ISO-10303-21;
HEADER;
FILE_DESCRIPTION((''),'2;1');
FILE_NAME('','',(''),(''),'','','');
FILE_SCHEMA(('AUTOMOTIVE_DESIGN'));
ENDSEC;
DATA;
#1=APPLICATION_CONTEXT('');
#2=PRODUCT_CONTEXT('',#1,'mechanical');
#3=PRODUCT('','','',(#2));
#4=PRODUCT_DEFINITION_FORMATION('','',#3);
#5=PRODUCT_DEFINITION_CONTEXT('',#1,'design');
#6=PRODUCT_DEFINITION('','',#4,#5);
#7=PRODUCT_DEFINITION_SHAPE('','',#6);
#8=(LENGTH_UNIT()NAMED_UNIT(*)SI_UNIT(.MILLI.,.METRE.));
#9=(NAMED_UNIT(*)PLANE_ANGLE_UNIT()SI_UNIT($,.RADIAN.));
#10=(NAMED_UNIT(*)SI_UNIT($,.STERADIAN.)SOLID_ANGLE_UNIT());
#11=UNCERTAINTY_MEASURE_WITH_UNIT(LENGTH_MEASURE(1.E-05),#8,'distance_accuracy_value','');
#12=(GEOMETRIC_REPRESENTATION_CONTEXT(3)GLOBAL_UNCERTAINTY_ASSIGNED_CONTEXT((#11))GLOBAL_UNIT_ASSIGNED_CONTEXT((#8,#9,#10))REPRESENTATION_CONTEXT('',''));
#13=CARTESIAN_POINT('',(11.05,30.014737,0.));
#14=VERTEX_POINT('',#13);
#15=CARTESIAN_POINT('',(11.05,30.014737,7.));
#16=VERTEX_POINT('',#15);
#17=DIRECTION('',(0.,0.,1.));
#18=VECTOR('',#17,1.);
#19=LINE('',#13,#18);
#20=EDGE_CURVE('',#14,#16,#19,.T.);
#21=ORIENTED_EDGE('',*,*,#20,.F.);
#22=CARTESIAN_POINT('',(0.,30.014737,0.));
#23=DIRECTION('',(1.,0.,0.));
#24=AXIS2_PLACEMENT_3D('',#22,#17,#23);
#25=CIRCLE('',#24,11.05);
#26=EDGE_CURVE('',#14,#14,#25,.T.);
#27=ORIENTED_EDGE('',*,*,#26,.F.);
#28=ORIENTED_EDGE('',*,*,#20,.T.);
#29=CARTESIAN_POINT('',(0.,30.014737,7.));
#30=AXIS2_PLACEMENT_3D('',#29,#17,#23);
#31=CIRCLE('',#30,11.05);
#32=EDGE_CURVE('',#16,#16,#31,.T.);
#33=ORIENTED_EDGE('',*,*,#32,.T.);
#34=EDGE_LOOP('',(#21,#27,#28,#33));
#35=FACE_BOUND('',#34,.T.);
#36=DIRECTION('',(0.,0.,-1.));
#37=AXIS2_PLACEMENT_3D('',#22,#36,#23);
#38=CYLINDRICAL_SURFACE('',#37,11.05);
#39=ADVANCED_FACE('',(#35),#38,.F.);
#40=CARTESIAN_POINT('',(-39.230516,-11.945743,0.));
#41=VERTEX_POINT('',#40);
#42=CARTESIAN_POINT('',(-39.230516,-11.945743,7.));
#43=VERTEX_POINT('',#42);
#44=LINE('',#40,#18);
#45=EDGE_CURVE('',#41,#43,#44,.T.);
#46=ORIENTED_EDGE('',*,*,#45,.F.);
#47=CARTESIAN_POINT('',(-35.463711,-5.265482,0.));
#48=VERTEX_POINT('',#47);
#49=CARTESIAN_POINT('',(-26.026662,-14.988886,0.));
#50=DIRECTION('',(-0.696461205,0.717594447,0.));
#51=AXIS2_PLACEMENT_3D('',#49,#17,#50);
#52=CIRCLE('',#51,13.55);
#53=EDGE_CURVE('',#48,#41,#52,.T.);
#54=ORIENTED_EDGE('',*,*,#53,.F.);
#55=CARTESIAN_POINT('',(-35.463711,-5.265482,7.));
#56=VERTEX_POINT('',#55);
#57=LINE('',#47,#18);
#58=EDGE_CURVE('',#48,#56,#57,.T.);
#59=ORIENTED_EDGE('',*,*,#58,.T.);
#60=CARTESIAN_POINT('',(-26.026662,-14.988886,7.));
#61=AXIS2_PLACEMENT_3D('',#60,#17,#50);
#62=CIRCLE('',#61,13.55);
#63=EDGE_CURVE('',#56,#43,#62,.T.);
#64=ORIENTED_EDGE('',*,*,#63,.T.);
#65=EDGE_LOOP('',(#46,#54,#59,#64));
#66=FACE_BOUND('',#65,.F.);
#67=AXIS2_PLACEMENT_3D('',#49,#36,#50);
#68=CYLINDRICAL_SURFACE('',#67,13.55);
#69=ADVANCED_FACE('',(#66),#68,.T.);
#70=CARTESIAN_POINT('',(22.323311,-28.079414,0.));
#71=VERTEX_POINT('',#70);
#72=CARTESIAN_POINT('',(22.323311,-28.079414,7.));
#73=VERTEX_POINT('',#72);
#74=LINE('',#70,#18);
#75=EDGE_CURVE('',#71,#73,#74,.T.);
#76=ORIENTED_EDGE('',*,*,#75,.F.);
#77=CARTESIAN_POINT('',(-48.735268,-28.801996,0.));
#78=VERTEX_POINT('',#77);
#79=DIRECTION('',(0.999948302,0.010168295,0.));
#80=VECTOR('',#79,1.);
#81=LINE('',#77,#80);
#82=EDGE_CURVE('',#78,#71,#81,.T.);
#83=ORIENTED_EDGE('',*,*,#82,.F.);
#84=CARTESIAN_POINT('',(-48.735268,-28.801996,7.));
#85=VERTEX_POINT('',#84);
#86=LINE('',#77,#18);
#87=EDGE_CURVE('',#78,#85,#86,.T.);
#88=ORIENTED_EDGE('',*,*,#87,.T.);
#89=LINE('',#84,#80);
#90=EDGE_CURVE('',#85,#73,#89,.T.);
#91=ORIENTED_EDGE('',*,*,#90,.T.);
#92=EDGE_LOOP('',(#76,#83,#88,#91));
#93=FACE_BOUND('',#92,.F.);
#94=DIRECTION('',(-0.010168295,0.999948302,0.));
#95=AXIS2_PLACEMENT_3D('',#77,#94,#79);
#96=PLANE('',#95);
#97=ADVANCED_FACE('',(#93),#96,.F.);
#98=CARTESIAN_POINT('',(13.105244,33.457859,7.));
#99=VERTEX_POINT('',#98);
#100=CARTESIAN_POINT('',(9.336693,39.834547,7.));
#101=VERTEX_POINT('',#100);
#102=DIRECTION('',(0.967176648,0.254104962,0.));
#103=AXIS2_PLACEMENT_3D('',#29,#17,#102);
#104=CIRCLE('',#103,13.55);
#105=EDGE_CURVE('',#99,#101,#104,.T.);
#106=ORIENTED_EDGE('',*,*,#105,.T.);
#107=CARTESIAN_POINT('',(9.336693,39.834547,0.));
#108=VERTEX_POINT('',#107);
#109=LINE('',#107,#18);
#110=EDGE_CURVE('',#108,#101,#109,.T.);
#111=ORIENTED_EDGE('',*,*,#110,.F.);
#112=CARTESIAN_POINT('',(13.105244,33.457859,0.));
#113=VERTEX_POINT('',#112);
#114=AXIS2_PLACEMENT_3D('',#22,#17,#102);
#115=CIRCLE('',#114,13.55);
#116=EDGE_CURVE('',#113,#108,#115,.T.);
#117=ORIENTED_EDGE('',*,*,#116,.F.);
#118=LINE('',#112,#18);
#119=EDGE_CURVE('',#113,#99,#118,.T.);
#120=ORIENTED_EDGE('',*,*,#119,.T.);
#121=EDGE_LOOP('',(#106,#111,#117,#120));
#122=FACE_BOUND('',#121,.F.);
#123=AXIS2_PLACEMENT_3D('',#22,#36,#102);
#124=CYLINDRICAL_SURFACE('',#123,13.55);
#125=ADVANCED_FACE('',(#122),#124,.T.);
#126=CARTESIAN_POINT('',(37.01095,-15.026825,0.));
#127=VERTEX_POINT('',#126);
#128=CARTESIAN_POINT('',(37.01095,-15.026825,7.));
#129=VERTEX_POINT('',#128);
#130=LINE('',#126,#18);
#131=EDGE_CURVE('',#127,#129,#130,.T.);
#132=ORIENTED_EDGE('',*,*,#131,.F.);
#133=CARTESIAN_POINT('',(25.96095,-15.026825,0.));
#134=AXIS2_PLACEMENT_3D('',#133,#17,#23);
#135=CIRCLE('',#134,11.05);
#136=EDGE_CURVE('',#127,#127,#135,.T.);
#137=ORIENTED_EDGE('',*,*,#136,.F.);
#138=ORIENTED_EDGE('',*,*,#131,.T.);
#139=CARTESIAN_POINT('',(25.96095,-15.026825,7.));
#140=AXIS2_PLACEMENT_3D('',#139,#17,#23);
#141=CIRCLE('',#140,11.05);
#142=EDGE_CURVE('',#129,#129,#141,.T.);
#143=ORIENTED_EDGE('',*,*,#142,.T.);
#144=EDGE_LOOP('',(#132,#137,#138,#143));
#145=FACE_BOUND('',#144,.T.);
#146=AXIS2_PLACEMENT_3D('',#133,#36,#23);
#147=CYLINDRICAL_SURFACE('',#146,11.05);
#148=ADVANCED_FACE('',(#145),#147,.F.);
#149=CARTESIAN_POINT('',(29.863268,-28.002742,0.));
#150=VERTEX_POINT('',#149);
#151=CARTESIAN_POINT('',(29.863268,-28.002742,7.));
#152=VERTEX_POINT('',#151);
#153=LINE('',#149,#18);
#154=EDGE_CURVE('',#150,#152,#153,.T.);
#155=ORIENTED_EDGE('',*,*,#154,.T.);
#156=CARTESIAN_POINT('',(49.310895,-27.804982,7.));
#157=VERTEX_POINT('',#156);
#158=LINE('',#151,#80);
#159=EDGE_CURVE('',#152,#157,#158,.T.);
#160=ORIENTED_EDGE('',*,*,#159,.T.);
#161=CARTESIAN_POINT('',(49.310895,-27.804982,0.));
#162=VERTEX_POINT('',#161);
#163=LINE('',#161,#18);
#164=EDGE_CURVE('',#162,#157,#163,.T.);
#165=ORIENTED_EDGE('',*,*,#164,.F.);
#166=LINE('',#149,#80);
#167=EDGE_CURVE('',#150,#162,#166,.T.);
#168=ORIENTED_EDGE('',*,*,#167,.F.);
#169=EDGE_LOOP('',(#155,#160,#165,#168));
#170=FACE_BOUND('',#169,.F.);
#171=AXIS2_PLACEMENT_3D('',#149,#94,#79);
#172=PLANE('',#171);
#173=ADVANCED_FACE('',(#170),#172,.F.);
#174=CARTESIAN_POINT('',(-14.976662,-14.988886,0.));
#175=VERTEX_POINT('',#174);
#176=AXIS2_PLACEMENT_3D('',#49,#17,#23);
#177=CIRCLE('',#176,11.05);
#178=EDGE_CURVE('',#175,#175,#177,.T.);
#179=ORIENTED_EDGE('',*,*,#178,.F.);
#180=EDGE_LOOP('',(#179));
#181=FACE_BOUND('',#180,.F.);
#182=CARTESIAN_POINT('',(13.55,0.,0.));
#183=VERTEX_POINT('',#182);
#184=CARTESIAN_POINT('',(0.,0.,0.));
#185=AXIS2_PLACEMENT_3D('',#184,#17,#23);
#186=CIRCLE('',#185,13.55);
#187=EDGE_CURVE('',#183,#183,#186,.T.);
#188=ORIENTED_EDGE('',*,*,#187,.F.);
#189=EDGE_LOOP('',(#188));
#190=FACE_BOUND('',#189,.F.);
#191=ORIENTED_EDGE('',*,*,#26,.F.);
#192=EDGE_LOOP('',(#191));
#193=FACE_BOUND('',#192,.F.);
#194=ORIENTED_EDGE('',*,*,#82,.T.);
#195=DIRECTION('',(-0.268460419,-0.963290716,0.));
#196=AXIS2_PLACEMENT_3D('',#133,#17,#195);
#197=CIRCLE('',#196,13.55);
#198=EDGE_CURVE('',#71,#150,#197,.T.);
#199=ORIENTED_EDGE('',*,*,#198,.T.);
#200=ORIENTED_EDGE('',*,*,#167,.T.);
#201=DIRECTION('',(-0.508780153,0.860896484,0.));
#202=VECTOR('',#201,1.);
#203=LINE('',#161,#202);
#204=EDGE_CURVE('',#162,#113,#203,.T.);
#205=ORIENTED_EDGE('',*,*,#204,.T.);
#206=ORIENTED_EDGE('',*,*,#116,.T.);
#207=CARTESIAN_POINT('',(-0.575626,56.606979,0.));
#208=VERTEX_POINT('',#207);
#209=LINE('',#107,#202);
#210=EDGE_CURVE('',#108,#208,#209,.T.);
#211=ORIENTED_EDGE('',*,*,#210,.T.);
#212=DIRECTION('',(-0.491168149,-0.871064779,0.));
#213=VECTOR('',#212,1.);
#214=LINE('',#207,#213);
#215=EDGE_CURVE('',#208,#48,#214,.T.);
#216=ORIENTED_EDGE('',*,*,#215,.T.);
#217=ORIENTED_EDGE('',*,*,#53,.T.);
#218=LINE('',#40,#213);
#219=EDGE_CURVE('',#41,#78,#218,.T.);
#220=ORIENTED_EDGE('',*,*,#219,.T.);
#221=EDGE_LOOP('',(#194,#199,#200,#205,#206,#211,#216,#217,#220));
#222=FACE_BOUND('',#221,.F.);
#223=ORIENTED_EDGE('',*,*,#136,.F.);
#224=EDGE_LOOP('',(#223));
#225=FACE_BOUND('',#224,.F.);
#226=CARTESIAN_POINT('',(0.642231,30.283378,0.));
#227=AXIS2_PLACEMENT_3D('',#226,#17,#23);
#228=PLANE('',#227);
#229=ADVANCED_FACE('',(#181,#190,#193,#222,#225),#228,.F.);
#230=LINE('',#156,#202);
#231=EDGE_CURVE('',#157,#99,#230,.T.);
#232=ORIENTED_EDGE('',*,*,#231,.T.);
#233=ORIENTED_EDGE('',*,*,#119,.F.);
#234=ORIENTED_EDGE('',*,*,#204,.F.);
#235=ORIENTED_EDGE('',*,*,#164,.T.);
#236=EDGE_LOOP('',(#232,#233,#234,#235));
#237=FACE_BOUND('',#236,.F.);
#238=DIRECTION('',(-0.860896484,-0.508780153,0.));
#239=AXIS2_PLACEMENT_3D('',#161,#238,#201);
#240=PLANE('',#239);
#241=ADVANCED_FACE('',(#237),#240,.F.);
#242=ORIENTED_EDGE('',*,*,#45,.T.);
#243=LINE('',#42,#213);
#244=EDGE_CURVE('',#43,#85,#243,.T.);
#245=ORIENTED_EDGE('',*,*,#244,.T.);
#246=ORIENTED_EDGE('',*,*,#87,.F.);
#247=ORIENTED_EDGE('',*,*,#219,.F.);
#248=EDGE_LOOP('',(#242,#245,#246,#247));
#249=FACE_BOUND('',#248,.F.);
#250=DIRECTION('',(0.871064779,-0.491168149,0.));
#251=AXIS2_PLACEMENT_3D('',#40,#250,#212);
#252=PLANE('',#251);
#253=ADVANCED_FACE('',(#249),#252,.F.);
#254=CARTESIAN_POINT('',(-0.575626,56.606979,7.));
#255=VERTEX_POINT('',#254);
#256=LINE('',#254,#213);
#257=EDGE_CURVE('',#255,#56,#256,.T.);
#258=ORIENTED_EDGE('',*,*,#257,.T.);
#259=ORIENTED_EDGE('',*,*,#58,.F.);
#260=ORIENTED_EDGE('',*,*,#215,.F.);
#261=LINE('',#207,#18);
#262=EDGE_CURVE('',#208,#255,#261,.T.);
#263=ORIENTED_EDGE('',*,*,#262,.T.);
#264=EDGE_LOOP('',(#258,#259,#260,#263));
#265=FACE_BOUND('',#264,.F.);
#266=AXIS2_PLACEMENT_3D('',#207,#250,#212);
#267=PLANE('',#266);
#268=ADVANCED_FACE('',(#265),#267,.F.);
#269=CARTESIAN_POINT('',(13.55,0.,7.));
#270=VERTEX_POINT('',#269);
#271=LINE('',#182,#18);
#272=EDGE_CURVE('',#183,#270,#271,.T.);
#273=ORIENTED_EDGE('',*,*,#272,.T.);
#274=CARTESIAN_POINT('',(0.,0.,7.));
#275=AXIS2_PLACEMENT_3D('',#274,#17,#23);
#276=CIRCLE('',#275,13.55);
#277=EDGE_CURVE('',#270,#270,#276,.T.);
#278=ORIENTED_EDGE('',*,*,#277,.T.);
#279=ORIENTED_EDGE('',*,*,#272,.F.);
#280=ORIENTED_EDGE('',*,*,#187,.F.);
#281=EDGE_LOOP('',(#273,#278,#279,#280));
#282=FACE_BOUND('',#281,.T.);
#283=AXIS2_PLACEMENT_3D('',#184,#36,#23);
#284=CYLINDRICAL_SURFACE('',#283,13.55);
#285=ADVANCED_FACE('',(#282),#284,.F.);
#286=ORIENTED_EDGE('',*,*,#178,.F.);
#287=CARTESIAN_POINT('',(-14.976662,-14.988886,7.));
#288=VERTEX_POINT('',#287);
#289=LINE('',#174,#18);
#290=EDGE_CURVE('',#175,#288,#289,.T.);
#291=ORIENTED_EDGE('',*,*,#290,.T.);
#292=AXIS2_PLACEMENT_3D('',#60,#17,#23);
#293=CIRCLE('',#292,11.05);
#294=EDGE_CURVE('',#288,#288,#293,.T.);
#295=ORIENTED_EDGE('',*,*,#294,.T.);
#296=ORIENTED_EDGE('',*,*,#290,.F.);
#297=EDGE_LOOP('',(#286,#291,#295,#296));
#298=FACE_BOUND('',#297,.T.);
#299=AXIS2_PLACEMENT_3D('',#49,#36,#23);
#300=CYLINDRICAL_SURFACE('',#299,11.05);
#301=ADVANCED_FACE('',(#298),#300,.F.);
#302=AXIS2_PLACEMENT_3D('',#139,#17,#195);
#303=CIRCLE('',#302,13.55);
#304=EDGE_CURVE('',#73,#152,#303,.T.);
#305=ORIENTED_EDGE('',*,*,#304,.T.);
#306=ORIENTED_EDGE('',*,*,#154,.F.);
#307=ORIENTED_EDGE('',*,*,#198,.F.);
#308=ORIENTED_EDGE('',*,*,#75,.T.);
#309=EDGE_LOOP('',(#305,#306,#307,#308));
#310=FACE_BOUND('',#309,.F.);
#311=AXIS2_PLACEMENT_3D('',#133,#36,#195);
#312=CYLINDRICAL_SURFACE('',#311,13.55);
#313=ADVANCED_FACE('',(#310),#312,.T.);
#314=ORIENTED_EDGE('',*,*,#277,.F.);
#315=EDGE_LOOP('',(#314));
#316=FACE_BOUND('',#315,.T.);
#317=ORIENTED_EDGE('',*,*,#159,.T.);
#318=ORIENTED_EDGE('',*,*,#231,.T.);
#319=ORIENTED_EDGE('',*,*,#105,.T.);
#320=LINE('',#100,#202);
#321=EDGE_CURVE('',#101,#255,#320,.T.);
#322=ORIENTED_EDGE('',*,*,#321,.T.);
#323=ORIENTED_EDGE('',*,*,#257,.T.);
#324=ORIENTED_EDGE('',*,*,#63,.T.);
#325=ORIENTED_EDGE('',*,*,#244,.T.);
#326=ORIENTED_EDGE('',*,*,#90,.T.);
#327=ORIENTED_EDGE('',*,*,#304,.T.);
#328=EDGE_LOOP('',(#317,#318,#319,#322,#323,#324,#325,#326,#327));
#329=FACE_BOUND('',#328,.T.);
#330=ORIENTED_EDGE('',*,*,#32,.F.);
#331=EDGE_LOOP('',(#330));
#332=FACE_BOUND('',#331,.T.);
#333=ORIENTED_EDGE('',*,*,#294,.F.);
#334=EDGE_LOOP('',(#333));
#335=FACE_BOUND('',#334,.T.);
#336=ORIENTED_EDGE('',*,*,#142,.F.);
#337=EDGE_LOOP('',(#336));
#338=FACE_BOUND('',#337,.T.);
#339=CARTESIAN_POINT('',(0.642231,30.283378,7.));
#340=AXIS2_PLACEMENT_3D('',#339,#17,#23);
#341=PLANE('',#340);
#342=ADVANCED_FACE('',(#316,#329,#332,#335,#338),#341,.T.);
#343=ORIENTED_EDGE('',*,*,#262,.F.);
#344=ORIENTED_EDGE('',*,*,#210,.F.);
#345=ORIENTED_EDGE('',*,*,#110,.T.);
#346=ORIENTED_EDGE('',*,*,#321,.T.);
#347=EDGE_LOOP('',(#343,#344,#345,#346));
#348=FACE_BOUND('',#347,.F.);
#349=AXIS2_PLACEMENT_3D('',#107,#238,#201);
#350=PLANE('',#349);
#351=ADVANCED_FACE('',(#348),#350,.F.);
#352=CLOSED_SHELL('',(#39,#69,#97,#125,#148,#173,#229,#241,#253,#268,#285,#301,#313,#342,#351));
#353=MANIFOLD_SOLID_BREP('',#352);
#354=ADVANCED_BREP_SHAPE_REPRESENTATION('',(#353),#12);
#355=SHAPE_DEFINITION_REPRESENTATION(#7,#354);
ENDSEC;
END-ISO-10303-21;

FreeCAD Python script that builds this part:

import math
import FreeCAD as App
import Part
import Sketcher

V = App.Vector
Q = App.Units.Quantity

doc = App.newDocument("Part")
params = doc.addObject("Spreadsheet::Sheet", "Params")
for row, (alias, value) in enumerate([
    ("sketch1_diameter", "22.1 mm"),
    ("sketch1_diameter2", "27.1 mm"),
    ("pad1_length", "7 mm"),
], start=1):
    params.set(f"A{row}", alias)
    params.set(f"B{row}", "=" + value)
    params.setAlias(f"B{row}", alias)

body = doc.addObject("PartDesign::Body", "Body")

# Sketch on XY plane
sketch1 = body.newObject("Sketcher::SketchObject", "Sketch")
sketch1.AttachmentSupport = (doc.getObject("XY_Plane"), [""])
sketch1.MapMode = "FlatFace"
sketch1.addGeometry([
    Part.LineSegment(V(49, -28, 0), V(13, 33, 0)),  # 0
    Part.ArcOfCircle(Part.Circle(V(0, 30, 0), V(0, 0, 1), 14), math.radians(15), math.radians(46)),  # 1
    Part.LineSegment(V(9, 40, 0), V(-1, 57, 0)),  # 2
    Part.LineSegment(V(-1, 57, 0), V(-35, -5, 0)),  # 3
    Part.ArcOfCircle(Part.Circle(V(-26, -15, 0), V(0, 0, 1), 14), math.radians(134), math.radians(167)),  # 4
    Part.LineSegment(V(-39, -12, 0), V(-49, -29, 0)),  # 5
    Part.LineSegment(V(-49, -29, 0), V(22, -28, 0)),  # 6
    Part.ArcOfCircle(Part.Circle(V(26, -15, 0), V(0, 0, 1), 14), math.radians(-106), math.radians(-73)),  # 7
    Part.LineSegment(V(30, -28, 0), V(49, -28, 0)),  # 8
    Part.Circle(V(-26, -15, 0), V(0, 0, 1), 11),  # 9
    Part.Circle(V(26, -15, 0), V(0, 0, 1), 11),  # 10
    Part.Circle(V(0, 0, 0), V(0, 0, 1), 14),  # 11
    Part.Circle(V(0, 30, 0), V(0, 0, 1), 11),  # 12
], False)
sketch1.addConstraint([
    Sketcher.Constraint("Coincident", 0, 2, 1, 1),
    Sketcher.Constraint("Coincident", 1, 2, 2, 1),
    Sketcher.Constraint("Coincident", 2, 2, 3, 1),
    Sketcher.Constraint("Coincident", 3, 2, 4, 1),
    Sketcher.Constraint("Coincident", 4, 2, 5, 1),
    Sketcher.Constraint("Coincident", 5, 2, 6, 1),
    Sketcher.Constraint("Coincident", 6, 2, 7, 1),
    Sketcher.Constraint("Coincident", 7, 2, 8, 1),
    Sketcher.Constraint("Coincident", 8, 2, 0, 1),
    Sketcher.Constraint("Coincident", 11, 3, -1, 1),
    Sketcher.Constraint("Coincident", 9, 3, 4, 3),
    Sketcher.Constraint("Coincident", 10, 3, 7, 3),
    Sketcher.Constraint("Coincident", 12, 3, 1, 3),
    Sketcher.Constraint("Equal", 1, 4),
    Sketcher.Constraint("Equal", 4, 7),
    Sketcher.Constraint("Equal", 9, 10),
    Sketcher.Constraint("Equal", 7, 11),
    Sketcher.Constraint("Equal", 10, 12),
    Sketcher.Constraint("PointOnObject", 1, 3, -2),
    Sketcher.Constraint("Parallel", 0, 2),
    Sketcher.Constraint("Parallel", 3, 5),
    Sketcher.Constraint("Parallel", 6, 8),
    Sketcher.Constraint("Diameter", 9, Q("22.1 mm")),
    Sketcher.Constraint("Diameter", 11, Q("27.1 mm")),
    Sketcher.Constraint("Distance", 0, Q("71.161681 mm")),
    Sketcher.Constraint("Distance", 2, Q("19.482519 mm")),
    Sketcher.Constraint("Distance", 5, Q("19.35132 mm")),
    Sketcher.Constraint("DistanceX", 4, 3, -1, 1, Q("26.026662 mm")),
    Sketcher.Constraint("DistanceX", -1, 1, 7, 3, Q("25.96095 mm")),
    Sketcher.Constraint("DistanceY", -1, 1, 0, 2, Q("33.457859 mm")),
    Sketcher.Constraint("DistanceY", -1, 1, 2, 2, Q("56.606979 mm")),
    Sketcher.Constraint("DistanceX", 3, 2, -1, 1, Q("35.463711 mm")),
    Sketcher.Constraint("DistanceY", 3, 2, -1, 1, Q("5.265482 mm")),
    Sketcher.Constraint("DistanceX", 5, 2, -1, 1, Q("48.735268 mm")),
    Sketcher.Constraint("DistanceX", -1, 1, 6, 2, Q("22.323311 mm")),
    Sketcher.Constraint("DistanceY", 7, 2, -1, 1, Q("28.002742 mm")),
    Sketcher.Constraint("DistanceY", 7, 3, 4, 3, Q("0.037939 mm")),
    Sketcher.Constraint("DistanceY", 7, 3, 1, 3, Q("45.041562 mm")),
])
sketch1.setExpression("Constraints[22]", "Params.sketch1_diameter")
sketch1.setExpression("Constraints[23]", "Params.sketch1_diameter2")
pad1 = body.newObject("PartDesign::Pad", "Pad")
pad1.Profile = sketch1
pad1.setExpression("Length", "Params.pad1_length")

doc.recompute()
